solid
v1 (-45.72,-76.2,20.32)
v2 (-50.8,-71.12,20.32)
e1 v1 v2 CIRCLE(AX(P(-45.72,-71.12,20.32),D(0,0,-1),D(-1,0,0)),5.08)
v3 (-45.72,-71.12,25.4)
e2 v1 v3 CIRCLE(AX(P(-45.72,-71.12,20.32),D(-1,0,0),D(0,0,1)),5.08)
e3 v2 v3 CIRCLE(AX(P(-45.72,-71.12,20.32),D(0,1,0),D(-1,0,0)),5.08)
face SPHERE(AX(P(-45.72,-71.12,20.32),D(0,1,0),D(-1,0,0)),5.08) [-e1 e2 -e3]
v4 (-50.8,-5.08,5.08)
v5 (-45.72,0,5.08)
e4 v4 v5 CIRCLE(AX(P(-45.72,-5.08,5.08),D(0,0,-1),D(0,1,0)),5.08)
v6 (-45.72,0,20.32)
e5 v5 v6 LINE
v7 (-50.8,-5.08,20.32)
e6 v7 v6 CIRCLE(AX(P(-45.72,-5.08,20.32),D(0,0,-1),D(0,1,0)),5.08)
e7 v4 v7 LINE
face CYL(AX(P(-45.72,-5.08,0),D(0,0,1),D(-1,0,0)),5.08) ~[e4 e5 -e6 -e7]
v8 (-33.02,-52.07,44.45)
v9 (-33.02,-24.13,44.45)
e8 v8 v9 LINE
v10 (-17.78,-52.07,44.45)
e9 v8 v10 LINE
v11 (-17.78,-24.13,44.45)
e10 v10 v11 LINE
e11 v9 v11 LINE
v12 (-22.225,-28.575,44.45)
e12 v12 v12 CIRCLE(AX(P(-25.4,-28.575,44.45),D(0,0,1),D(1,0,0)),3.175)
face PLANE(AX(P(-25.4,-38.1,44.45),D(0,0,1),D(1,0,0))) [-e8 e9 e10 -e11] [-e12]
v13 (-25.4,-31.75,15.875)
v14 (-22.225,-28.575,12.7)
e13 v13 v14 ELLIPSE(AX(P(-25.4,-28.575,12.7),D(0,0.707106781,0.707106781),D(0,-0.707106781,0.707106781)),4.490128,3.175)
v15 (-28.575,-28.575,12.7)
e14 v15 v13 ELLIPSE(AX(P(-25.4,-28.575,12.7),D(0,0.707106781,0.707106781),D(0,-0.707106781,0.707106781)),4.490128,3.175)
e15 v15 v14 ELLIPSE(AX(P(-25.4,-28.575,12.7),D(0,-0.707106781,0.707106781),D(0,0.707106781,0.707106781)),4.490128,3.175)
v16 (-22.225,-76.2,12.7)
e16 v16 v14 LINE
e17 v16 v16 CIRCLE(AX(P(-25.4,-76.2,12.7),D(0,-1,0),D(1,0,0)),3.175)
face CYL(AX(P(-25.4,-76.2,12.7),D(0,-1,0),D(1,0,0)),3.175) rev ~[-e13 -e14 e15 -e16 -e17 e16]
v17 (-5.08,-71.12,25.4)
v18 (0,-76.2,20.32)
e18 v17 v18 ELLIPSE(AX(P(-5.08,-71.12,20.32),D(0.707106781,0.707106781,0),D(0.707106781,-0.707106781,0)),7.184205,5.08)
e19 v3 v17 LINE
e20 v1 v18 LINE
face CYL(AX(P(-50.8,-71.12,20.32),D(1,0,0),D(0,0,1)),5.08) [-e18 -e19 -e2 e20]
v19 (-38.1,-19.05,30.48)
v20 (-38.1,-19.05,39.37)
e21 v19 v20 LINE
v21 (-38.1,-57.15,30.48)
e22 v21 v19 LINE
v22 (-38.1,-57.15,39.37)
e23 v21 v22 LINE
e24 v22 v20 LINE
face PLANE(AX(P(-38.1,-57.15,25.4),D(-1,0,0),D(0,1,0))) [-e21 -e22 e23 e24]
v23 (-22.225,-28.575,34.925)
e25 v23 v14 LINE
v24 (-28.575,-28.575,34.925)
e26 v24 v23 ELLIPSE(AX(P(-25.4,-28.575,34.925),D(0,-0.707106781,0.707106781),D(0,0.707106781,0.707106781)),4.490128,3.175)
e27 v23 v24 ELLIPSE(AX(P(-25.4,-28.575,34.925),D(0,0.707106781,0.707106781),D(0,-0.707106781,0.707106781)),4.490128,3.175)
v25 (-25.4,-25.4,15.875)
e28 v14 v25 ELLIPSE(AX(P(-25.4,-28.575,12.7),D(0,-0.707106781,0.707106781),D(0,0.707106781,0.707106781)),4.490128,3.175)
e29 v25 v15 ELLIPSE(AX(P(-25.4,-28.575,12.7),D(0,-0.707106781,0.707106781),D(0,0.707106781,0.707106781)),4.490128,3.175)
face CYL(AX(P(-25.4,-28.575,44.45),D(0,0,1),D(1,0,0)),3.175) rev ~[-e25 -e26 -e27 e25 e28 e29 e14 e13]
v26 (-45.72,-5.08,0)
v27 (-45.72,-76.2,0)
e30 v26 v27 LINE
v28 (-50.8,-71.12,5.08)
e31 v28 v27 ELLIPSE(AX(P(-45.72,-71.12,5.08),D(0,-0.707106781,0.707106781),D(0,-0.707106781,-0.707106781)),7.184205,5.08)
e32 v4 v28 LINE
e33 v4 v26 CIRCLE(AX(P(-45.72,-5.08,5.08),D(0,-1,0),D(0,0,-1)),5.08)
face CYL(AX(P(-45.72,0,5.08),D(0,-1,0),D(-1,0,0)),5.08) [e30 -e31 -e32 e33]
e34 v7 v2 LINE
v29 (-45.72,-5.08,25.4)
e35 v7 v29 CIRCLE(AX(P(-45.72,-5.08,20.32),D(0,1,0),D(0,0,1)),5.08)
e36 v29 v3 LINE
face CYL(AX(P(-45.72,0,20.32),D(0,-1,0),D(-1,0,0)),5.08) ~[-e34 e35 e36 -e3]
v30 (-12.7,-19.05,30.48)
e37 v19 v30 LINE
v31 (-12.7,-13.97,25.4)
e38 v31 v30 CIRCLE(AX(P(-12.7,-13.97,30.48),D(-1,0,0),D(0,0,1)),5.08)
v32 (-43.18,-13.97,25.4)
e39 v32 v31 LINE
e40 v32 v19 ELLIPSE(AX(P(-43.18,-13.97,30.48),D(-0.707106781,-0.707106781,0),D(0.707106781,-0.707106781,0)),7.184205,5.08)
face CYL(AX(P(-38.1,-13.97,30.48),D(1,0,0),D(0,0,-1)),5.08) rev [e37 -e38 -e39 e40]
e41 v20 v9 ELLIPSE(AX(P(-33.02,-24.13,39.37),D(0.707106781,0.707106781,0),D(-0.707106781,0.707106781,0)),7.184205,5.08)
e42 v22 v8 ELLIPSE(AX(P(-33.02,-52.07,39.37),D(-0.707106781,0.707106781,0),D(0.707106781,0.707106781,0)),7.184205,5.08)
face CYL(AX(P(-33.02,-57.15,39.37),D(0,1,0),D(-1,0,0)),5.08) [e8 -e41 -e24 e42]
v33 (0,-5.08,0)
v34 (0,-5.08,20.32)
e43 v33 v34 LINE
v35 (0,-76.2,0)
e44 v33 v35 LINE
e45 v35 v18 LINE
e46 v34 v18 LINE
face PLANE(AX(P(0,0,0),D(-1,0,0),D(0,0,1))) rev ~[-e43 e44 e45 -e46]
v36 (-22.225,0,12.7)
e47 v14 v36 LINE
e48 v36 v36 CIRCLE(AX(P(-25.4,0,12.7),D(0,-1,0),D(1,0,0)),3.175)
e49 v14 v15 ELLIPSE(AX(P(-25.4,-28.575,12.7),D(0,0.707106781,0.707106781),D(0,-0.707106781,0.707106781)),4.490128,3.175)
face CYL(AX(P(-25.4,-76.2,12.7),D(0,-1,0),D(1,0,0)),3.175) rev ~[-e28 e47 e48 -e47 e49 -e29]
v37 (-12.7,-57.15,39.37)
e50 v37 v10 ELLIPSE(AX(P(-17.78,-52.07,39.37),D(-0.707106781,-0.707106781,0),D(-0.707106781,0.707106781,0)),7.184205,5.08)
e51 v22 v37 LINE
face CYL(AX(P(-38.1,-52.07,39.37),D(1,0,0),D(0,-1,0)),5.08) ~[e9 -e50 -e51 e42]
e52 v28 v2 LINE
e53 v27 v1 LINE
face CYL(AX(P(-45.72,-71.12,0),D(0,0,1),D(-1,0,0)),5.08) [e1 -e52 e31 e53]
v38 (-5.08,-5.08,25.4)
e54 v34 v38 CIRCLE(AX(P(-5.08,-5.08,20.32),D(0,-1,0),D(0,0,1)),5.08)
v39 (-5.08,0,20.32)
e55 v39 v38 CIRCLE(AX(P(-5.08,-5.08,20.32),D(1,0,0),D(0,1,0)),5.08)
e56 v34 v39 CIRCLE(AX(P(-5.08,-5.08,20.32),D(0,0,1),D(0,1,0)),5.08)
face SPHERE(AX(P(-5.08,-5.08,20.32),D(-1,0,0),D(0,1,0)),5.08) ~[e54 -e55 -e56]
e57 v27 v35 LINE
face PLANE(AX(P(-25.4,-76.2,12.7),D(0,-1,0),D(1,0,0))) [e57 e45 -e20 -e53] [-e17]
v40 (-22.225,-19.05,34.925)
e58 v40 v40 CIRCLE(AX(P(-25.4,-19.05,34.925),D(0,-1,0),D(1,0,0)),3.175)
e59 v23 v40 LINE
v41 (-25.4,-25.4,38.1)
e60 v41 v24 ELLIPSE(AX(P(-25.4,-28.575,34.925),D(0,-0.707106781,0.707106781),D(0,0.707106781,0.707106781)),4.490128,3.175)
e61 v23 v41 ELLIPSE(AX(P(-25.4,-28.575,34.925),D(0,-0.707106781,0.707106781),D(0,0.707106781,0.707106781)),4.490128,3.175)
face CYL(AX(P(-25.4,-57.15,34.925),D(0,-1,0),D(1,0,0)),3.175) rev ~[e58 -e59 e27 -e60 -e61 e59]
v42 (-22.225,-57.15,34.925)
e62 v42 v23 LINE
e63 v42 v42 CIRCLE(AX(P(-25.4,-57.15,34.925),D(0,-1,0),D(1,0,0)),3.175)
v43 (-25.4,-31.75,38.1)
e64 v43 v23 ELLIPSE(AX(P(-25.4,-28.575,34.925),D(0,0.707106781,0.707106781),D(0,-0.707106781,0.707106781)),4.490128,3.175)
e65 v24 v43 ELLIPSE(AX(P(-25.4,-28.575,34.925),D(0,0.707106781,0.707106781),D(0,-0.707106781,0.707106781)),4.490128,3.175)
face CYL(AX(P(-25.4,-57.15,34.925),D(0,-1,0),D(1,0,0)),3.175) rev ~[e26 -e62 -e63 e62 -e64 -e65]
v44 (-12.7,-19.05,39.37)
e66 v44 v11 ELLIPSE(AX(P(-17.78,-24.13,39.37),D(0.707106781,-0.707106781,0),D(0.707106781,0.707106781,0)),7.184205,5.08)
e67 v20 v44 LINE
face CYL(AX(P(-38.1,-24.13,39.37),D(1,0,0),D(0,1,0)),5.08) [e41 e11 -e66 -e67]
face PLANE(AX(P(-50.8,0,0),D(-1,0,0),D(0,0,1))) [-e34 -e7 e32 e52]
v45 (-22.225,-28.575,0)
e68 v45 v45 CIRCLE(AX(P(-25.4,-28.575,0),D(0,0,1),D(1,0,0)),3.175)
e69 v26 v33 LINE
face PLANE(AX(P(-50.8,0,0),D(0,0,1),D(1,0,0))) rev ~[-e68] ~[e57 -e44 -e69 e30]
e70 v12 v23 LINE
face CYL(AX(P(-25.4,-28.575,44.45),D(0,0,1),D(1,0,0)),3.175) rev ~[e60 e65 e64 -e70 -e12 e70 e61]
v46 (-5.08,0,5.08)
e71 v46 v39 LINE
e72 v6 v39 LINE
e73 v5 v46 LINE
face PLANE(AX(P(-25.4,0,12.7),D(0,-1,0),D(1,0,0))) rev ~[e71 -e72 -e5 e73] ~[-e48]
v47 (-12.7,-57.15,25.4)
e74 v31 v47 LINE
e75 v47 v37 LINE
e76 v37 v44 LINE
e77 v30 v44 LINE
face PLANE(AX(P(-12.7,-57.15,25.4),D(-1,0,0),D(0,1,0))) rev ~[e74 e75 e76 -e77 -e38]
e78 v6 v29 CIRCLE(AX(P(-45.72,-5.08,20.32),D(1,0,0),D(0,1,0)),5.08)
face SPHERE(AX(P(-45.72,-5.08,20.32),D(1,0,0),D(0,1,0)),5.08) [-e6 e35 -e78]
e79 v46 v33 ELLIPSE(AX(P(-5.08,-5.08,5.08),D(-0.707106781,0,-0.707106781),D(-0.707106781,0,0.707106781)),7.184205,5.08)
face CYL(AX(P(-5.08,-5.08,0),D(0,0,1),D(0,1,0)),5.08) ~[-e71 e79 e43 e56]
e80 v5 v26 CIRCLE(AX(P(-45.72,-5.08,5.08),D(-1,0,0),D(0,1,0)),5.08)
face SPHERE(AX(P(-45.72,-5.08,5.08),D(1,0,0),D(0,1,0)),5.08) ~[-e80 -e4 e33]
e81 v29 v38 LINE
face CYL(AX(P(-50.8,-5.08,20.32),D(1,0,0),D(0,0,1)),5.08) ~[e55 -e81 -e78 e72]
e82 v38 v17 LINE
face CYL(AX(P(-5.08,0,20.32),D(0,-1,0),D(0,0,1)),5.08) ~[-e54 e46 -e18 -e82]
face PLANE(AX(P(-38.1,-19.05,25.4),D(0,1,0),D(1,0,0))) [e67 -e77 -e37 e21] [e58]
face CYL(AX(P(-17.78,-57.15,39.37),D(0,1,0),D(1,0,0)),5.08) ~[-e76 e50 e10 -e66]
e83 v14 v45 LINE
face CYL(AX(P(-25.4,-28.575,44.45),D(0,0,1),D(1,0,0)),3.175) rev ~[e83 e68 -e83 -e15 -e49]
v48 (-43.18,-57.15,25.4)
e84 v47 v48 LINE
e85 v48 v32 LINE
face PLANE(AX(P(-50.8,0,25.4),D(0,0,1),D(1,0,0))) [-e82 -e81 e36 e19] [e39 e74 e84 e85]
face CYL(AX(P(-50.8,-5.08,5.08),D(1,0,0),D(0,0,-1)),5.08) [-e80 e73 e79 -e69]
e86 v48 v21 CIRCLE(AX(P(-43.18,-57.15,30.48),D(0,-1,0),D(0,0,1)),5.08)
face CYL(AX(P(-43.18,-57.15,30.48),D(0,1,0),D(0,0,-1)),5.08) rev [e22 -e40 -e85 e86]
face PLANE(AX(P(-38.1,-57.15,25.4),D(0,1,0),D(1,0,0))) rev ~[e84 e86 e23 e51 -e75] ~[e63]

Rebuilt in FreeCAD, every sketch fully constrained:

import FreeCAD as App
import Part
import Sketcher
from FreeCAD import Vector
Q = App.Units.Quantity


def edges_at(feature, points):
    """Names of the edges that pass closest to the given points."""
    edges = feature.Shape.Edges
    near = lambda p: min(range(len(edges)), key=lambda i: edges[i].distToShape(Part.Vertex(*p))[0])
    return sorted({f"Edge{near(p) + 1}" for p in points})


def add_polygon(sketch, points):
    """Adds a closed chain of lines whose ends are joined by coincident constraints."""
    first, n = sketch.GeometryCount, len(points)
    for a, b in zip(points, points[1:] + points[:1]):
        sketch.addGeometry(Part.LineSegment(App.Vector(*a, 0), App.Vector(*b, 0)), False)
    for i in range(n):
        sketch.addConstraint(Sketcher.Constraint("Coincident", first + i, 2, first + (i + 1) % n, 1))

doc = App.newDocument("Part")
params = doc.addObject("Spreadsheet::Sheet", "Params")
for row, (alias, value) in enumerate([
    ("sketch1_width", "2 in"),
    ("sketch1_height", "1 in"),
    ("pad1_length", "3 in"),
    ("sketch2_width", "1 in"),
    ("sketch2_height", "1.5 in"),
    ("pad2_length", "0.75 in"),
    ("sketch3_diameter", "0.25 in"),
    ("pocket1_length", "1.75 in"),
    ("sketch4_diameter", "0.25 in"),
    ("pocket2_length", "3 in"),
    ("sketch5_diameter", "0.25 in"),
    ("pocket3_length", "1.5 in"),
    ("fillet_radius", "0.2 in"),
], start=1):
    params.set(f"A{row}", alias)
    params.set(f"B{row}", "=" + value)
    params.setAlias(f"B{row}", alias)

body = doc.addObject("PartDesign::Body", "Body")

# Sketch on XZ plane
sketch1 = doc.addObject("Sketcher::SketchObject", "Sketch")
body.addObject(sketch1)
sketch1.AttachmentSupport = (doc.XZ_Plane, [""])
sketch1.MapMode = "FlatFace"
add_polygon(sketch1, [(-50.8, 25.4), (-50.8, 0), (0, 0), (0, 25.4)])  # lines 0-3
sketch1.addConstraint([
    Sketcher.Constraint("Vertical", 0),
    Sketcher.Constraint("Horizontal", 1),
    Sketcher.Constraint("Vertical", 2),
    Sketcher.Constraint("Horizontal", 3),
    Sketcher.Constraint("Coincident", 1, 2, -1, 1),
    Sketcher.Constraint("DistanceX", 1, 1, 1, 2, Q("2 in")),
    Sketcher.Constraint("DistanceY", 0, 2, 0, 1, Q("1 in")),
])
sketch1.setExpression("Constraints[9]", "Params.sketch1_width")
sketch1.setExpression("Constraints[10]", "Params.sketch1_height")
pad1 = doc.addObject("PartDesign::Pad", "Pad")
body.addObject(pad1)
pad1.Profile = sketch1
pad1.setExpression("Length", "Params.pad1_length")

# Sketch on XY plane
sketch2 = doc.addObject("Sketcher::SketchObject", "Sketch001")
body.addObject(sketch2)
sketch2.AttachmentSupport = (doc.XY_Plane, [""])
sketch2.MapMode = "FlatFace"
sketch2.AttachmentOffset = App.Placement(Vector(0, 0, 1 * 25.4), App.Rotation())
add_polygon(sketch2, [(-38.1, -19.05), (-38.1, -57.15), (-12.7, -57.15), (-12.7, -19.05)])  # lines 0-3
sketch2.addConstraint([
    Sketcher.Constraint("Vertical", 0),
    Sketcher.Constraint("Horizontal", 1),
    Sketcher.Constraint("Vertical", 2),
    Sketcher.Constraint("Horizontal", 3),
    Sketcher.Constraint("DistanceX", 1, 1, 1, 2, Q("1 in")),
    Sketcher.Constraint("DistanceY", 0, 2, 0, 1, Q("1.5 in")),
    Sketcher.Constraint("DistanceX", 0, 2, -1, 1, Q("1.5 in")),
    Sketcher.Constraint("DistanceY", 0, 2, -1, 1, Q("2.25 in")),
])
sketch2.setExpression("Constraints[8]", "Params.sketch2_width")
sketch2.setExpression("Constraints[9]", "Params.sketch2_height")
pad2 = doc.addObject("PartDesign::Pad", "Pad001")
body.addObject(pad2)
pad2.Profile = sketch2
pad2.setExpression("Length", "Params.pad2_length")

# Sketch on XY plane
sketch3 = doc.addObject("Sketcher::SketchObject", "Sketch002")
body.addObject(sketch3)
sketch3.AttachmentSupport = (doc.XY_Plane, [""])
sketch3.MapMode = "FlatFace"
sketch3.AttachmentOffset = App.Placement(Vector(0, 0, 1.75 * 25.4), App.Rotation())
sketch3.addGeometry(Part.Circle(Vector(-25.4, -28.575, 0), Vector(0, 0, 1), 3.175), False)
sketch3.addConstraint([
    Sketcher.Constraint("Diameter", 0, Q("0.25 in")),
    Sketcher.Constraint("DistanceX", 0, 3, -1, 1, Q("1 in")),
    Sketcher.Constraint("DistanceY", 0, 3, -1, 1, Q("1.125 in")),
])
sketch3.setExpression("Constraints[0]", "Params.sketch3_diameter")
pocket1 = doc.addObject("PartDesign::Pocket", "Pocket")
body.addObject(pocket1)
pocket1.Profile = sketch3
pocket1.setExpression("Length", "Params.pocket1_length")

# Sketch on XZ plane
sketch4 = doc.addObject("Sketcher::SketchObject", "Sketch003")
body.addObject(sketch4)
sketch4.AttachmentSupport = (doc.XZ_Plane, [""])
sketch4.MapMode = "FlatFace"
sketch4.AttachmentOffset = App.Placement(Vector(0, 0, 3 * 25.4), App.Rotation())
sketch4.addGeometry(Part.Circle(Vector(-25.4, 12.7, 0), Vector(0, 0, 1), 3.175), False)
sketch4.addConstraint([
    Sketcher.Constraint("Diameter", 0, Q("0.25 in")),
    Sketcher.Constraint("DistanceX", 0, 3, -1, 1, Q("1 in")),
    Sketcher.Constraint("DistanceY", -1, 1, 0, 3, Q("0.5 in")),
])
sketch4.setExpression("Constraints[0]", "Params.sketch4_diameter")
pocket2 = doc.addObject("PartDesign::Pocket", "Pocket001")
body.addObject(pocket2)
pocket2.Profile = sketch4
pocket2.setExpression("Length", "Params.pocket2_length")

# Sketch on XZ plane
sketch5 = doc.addObject("Sketcher::SketchObject", "Sketch004")
body.addObject(sketch5)
sketch5.AttachmentSupport = (doc.XZ_Plane, [""])
sketch5.MapMode = "FlatFace"
sketch5.AttachmentOffset = App.Placement(Vector(0, 0, 2.25 * 25.4), App.Rotation())
sketch5.addGeometry(Part.Circle(Vector(-25.4, 34.925, 0), Vector(0, 0, 1), 3.175), False)
sketch5.addConstraint([
    Sketcher.Constraint("Diameter", 0, Q("0.25 in")),
    Sketcher.Constraint("DistanceX", 0, 3, -1, 1, Q("1 in")),
    Sketcher.Constraint("DistanceY", -1, 1, 0, 3, Q("1.375 in")),
])
sketch5.setExpression("Constraints[0]", "Params.sketch5_diameter")
pocket3 = doc.addObject("PartDesign::Pocket", "Pocket002")
body.addObject(pocket3)
pocket3.Profile = sketch5
pocket3.setExpression("Length", "Params.pocket3_length")
doc.recompute()

fillet = doc.addObject("PartDesign::Fillet", "Fillet")
body.addObject(fillet)
fillet.Base = (pocket3, edges_at(pocket3, [
    (-38.1, -38.1, 44.45),
    (-25.4, -19.05, 44.45),
    (-12.7, -38.1, 44.45),
    (-25.4, -57.15, 44.45),
    (-25.4, -19.05, 25.4),
    (-38.1, -38.1, 25.4),
    (-25.4, 0, 25.4),
    (0, 0, 12.7),
    (-25.4, 0, 0),
    (-50.8, 0, 12.7),
    (-50.8, -38.1, 25.4),
    (-50.8, -38.1, 0),
    (-50.8, -76.2, 12.7),
    (-25.4, -76.2, 25.4),
    (0, -38.1, 25.4),
]))
fillet.setExpression("Radius", "Params.fillet_radius")

doc.recompute()
